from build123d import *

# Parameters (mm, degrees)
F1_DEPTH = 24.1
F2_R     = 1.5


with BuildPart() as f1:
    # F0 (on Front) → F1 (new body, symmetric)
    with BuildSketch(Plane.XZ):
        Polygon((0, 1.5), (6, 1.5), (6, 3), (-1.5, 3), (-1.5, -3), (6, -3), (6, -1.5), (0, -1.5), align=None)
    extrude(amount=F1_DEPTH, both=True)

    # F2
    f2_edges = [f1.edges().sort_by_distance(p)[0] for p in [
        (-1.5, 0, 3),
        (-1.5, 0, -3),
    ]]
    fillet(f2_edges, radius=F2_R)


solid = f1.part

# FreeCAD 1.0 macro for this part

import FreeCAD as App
import Part
import Sketcher
from FreeCAD import Vector
Q = App.Units.Quantity


def edges_at(feature, points):
    """Names of the edges that pass closest to the given points."""
    edges = feature.Shape.Edges
    near = lambda p: min(range(len(edges)), key=lambda i: edges[i].distToShape(Part.Vertex(*p))[0])
    return sorted({f"Edge{near(p) + 1}" for p in points})

doc = App.newDocument("Part")
body = doc.addObject("PartDesign::Body", "Body")

# Sketch on XZ plane
sketch1 = doc.addObject("Sketcher::SketchObject", "Sketch")
body.addObject(sketch1)
sketch1.AttachmentSupport = (doc.XZ_Plane, [""])
sketch1.MapMode = "FlatFace"
sketch1.addGeometry(Part.LineSegment(Vector(0, 1.5, 0), Vector(6, 1.5, 0)), False)
sketch1.addGeometry(Part.LineSegment(Vector(6, 1.5, 0), Vector(6, 3, 0)), False)
sketch1.addGeometry(Part.LineSegment(Vector(6, 3, 0), Vector(-1.5, 3, 0)), False)
sketch1.addGeometry(Part.LineSegment(Vector(-1.5, 3, 0), Vector(-1.5, -3, 0)), False)
sketch1.addGeometry(Part.LineSegment(Vector(-1.5, -3, 0), Vector(6, -3, 0)), False)
sketch1.addGeometry(Part.LineSegment(Vector(6, -3, 0), Vector(6, -1.5, 0)), False)
sketch1.addGeometry(Part.LineSegment(Vector(6, -1.5, 0), Vector(0, -1.5, 0)), False)
sketch1.addGeometry(Part.LineSegment(Vector(0, -1.5, 0), Vector(0, 1.5, 0)), False)
sketch1.addConstraint(Sketcher.Constraint("Coincident", 0, 2, 1, 1))
sketch1.addConstraint(Sketcher.Constraint("Coincident", 1, 2, 2, 1))
sketch1.addConstraint(Sketcher.Constraint("Coincident", 2, 2, 3, 1))
sketch1.addConstraint(Sketcher.Constraint("Coincident", 3, 2, 4, 1))
sketch1.addConstraint(Sketcher.Constraint("Coincident", 4, 2, 5, 1))
sketch1.addConstraint(Sketcher.Constraint("Coincident", 5, 2, 6, 1))
sketch1.addConstraint(Sketcher.Constraint("Coincident", 6, 2, 7, 1))
sketch1.addConstraint(Sketcher.Constraint("Coincident", 7, 2, 0, 1))
sketch1.addConstraint(Sketcher.Constraint("Horizontal", 0))
sketch1.addConstraint(Sketcher.Constraint("Vertical", 1))
sketch1.addConstraint(Sketcher.Constraint("Horizontal", 2))
sketch1.addConstraint(Sketcher.Constraint("Vertical", 3))
sketch1.addConstraint(Sketcher.Constraint("Horizontal", 4))
sketch1.addConstraint(Sketcher.Constraint("Vertical", 5))
sketch1.addConstraint(Sketcher.Constraint("Horizontal", 6))
sketch1.addConstraint(Sketcher.Constraint("Vertical", 7))
sketch1.addConstraint(Sketcher.Constraint("Symmetric", 6, 2, 7, 2, -1, 1))
sketch1.addConstraint(Sketcher.Constraint("Symmetric", 1, 2, 4, 2, -1))
sketch1.addConstraint(Sketcher.Constraint("Equal", 6, 3))
sketch1.addConstraint(Sketcher.Constraint("DistanceX", 0, 1, 0, 2, Q("6 mm")))
sketch1.addConstraint(Sketcher.Constraint("DistanceY", 7, 1, 7, 2, Q("3 mm")))
sketch1.addConstraint(Sketcher.Constraint("DistanceX", 2, 2, 2, 1, Q("7.5 mm")))
pad1 = doc.addObject("PartDesign::Pad", "Pad")
body.addObject(pad1)
pad1.Profile = sketch1
pad1.Length = 48.2
pad1.Midplane = True
doc.recompute()

fillet = doc.addObject("PartDesign::Fillet", "Fillet")
body.addObject(fillet)
fillet.Base = (pad1, edges_at(pad1, [(-1.5, 0, 3), (-1.5, 0, -3)]))
fillet.Radius = 1.5

doc.recompute()
